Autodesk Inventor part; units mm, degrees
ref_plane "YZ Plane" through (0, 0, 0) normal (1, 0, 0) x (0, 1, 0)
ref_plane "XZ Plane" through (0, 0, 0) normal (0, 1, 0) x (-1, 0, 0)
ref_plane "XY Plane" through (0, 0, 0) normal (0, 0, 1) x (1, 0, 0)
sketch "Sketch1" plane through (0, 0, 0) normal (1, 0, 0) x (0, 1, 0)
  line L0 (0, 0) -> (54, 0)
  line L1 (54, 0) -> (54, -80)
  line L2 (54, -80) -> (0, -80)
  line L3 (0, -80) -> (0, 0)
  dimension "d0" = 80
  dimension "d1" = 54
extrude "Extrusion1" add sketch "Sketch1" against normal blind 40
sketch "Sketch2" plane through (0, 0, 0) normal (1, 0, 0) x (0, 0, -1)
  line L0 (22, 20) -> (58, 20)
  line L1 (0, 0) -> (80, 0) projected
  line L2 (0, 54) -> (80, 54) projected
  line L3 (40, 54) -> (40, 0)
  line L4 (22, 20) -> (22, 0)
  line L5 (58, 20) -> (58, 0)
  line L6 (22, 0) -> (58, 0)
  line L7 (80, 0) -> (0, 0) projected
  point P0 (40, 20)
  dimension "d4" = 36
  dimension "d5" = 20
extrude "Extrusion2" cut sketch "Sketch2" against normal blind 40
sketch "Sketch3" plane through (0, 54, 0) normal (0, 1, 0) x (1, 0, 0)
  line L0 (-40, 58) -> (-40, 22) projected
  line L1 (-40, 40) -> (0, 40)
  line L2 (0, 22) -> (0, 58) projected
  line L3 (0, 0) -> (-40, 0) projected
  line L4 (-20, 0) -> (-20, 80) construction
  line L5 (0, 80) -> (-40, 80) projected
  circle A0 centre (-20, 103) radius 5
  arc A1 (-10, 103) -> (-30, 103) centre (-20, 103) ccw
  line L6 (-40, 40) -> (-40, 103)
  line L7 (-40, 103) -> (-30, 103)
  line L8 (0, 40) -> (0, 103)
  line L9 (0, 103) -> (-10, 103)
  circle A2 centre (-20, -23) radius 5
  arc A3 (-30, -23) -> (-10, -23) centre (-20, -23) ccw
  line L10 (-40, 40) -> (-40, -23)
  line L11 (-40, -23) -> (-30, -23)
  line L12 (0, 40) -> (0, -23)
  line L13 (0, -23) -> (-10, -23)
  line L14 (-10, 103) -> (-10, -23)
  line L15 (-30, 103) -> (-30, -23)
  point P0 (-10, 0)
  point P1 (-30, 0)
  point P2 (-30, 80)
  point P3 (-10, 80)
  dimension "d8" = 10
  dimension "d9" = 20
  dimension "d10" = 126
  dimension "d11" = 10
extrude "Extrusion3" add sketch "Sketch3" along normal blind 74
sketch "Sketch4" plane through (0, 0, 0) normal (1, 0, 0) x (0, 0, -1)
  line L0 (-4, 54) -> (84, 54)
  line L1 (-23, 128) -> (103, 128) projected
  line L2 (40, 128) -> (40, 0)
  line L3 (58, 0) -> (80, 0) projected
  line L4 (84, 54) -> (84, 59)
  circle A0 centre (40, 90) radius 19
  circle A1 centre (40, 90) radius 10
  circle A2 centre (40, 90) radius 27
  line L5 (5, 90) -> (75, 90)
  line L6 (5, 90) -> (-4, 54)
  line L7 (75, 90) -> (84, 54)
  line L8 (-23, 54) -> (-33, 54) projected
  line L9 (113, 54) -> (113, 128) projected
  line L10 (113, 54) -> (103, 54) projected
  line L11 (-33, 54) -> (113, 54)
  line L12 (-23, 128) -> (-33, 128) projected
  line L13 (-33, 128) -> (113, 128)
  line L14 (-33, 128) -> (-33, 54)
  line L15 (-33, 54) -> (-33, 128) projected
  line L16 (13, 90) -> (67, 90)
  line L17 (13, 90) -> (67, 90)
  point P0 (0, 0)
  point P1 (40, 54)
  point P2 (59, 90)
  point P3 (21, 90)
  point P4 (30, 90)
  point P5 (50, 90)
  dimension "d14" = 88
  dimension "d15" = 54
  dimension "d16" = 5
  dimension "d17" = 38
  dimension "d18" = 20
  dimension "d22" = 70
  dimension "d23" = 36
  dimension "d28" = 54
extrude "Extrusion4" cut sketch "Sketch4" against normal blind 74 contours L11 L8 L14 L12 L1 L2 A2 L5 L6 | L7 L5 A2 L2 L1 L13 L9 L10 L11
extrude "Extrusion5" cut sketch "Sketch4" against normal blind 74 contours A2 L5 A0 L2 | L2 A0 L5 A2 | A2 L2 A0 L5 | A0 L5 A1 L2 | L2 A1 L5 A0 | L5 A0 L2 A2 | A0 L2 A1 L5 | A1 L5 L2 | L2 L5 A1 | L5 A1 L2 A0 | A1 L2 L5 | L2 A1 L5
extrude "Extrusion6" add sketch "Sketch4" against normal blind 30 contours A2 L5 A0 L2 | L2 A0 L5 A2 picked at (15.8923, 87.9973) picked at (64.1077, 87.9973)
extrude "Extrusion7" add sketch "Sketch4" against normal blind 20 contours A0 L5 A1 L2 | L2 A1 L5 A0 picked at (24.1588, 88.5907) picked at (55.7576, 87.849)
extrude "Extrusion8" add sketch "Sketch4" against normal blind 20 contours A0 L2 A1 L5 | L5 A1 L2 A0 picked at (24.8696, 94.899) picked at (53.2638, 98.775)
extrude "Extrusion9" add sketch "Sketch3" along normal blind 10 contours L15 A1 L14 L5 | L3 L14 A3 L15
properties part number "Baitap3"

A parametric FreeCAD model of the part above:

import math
import FreeCAD as App
import Part
import Sketcher

V = App.Vector
Q = App.Units.Quantity


def add_polygon(sketch, points):
    """Adds a closed chain of lines whose ends are joined by coincident constraints."""
    first, n = sketch.GeometryCount, len(points)
    for a, b in zip(points, points[1:] + points[:1]):
        sketch.addGeometry(Part.LineSegment(App.Vector(*a, 0), App.Vector(*b, 0)), False)
    for i in range(n):
        sketch.addConstraint(Sketcher.Constraint("Coincident", first + i, 2, first + (i + 1) % n, 1))

doc = App.newDocument("Part")
params = doc.addObject("Spreadsheet::Sheet", "Params")
for row, (alias, value) in enumerate([
    ("sketch1_width", "54 mm"),
    ("sketch1_height", "80 mm"),
    ("pad1_length", "40 mm"),
    ("sketch2_width", "20 mm"),
    ("sketch2_height", "36 mm"),
    ("pocket1_length", "40 mm"),
    ("sketch3_diameter", "10 mm"),
    ("sketch3_radius", "10 mm"),
    ("sketch3_width", "10 mm"),
    ("sketch3_height", "126 mm"),
    ("pad2_length", "74 mm"),
    ("sketch4_radius", "27 mm"),
    ("sketch4_height", "29 mm"),
    ("pocket2_length", "74 mm"),
    ("sketch5_diameter", "54 mm"),
    ("pocket3_length", "74 mm"),
    ("sketch6_radius", "27 mm"),
    ("sketch6_radius2", "19 mm"),
    ("pad3_length", "30 mm"),
    ("sketch7_radius", "19 mm"),
    ("sketch7_radius2", "10 mm"),
    ("pad4_length", "20 mm"),
    ("sketch8_radius", "10 mm"),
    ("sketch8_radius2", "19 mm"),
    ("pad5_length", "20 mm"),
    ("sketch9_diameter", "10 mm"),
    ("sketch9_radius", "10 mm"),
    ("sketch9_height", "23 mm"),
    ("pad6_length", "10 mm"),
], start=1):
    params.set(f"A{row}", alias)
    params.set(f"B{row}", "=" + value)
    params.setAlias(f"B{row}", alias)

body = doc.addObject("PartDesign::Body", "Body")

# Sketch on YZ plane
sketch1 = body.newObject("Sketcher::SketchObject", "Sketch")
sketch1.AttachmentSupport = (doc.getObject("YZ_Plane"), [""])
sketch1.MapMode = "FlatFace"
add_polygon(sketch1, [(54, 0), (0, 0), (0, -80), (54, -80)])  # lines 0-3
sketch1.addConstraint(Sketcher.Constraint("Horizontal", 0))
sketch1.addConstraint(Sketcher.Constraint("Vertical", 1))
sketch1.addConstraint(Sketcher.Constraint("Horizontal", 2))
sketch1.addConstraint(Sketcher.Constraint("Vertical", 3))
sketch1.addConstraint(Sketcher.Constraint("Coincident", 0, 2, -1, 1))
sketch1.addConstraint(Sketcher.Constraint("DistanceX", 0, 2, 0, 1, Q("54 mm")))
sketch1.addConstraint(Sketcher.Constraint("DistanceY", 1, 2, 1, 1, Q("80 mm")))
sketch1.setExpression("Constraints[9]", "Params.sketch1_width")
sketch1.setExpression("Constraints[10]", "Params.sketch1_height")
pad1 = body.newObject("PartDesign::Pad", "Pad")
pad1.Profile = sketch1
pad1.setExpression("Length", "Params.pad1_length")
pad1.Reversed = True

# Sketch on YZ plane
sketch2 = body.newObject("Sketcher::SketchObject", "Sketch001")
sketch2.AttachmentSupport = (doc.getObject("YZ_Plane"), [""])
sketch2.MapMode = "FlatFace"
add_polygon(sketch2, [(20, -22), (0, -22), (0, -58), (20, -58)])  # lines 0-3
sketch2.addConstraint(Sketcher.Constraint("Horizontal", 0))
sketch2.addConstraint(Sketcher.Constraint("Vertical", 1))
sketch2.addConstraint(Sketcher.Constraint("Horizontal", 2))
sketch2.addConstraint(Sketcher.Constraint("Vertical", 3))
sketch2.addConstraint(Sketcher.Constraint("PointOnObject", 0, 2, -2))
sketch2.addConstraint(Sketcher.Constraint("DistanceX", 0, 2, 0, 1, Q("20 mm")))
sketch2.addConstraint(Sketcher.Constraint("DistanceY", 1, 2, 1, 1, Q("36 mm")))
sketch2.addConstraint(Sketcher.Constraint("DistanceY", 0, 2, -1, 1, Q("22 mm")))
sketch2.setExpression("Constraints[9]", "Params.sketch2_width")
sketch2.setExpression("Constraints[10]", "Params.sketch2_height")
pocket1 = body.newObject("PartDesign::Pocket", "Pocket")
pocket1.Profile = sketch2
pocket1.setExpression("Length", "Params.pocket1_length")

# Sketch on XZ plane
sketch3 = body.newObject("Sketcher::SketchObject", "Sketch002")
sketch3.AttachmentSupport = (doc.getObject("XZ_Plane"), [""])
sketch3.MapMode = "FlatFace"
sketch3.AttachmentOffset = App.Placement(V(0, 0, -54), App.Rotation())
sketch3.addGeometry(Part.LineSegment(V(-40, 23, 0), V(-30, 23, 0)), False)
sketch3.addGeometry(Part.ArcOfCircle(Part.Circle(V(-20, 23, 0), V(0, 0, 1), 10), math.radians(0), math.radians(180)), False)
sketch3.addGeometry(Part.LineSegment(V(-10, 23, 0), V(0, 23, 0)), False)
sketch3.addGeometry(Part.LineSegment(V(0, 23, 0), V(0, -103, 0)), False)
sketch3.addGeometry(Part.LineSegment(V(0, -103, 0), V(-10, -103, 0)), False)
sketch3.addGeometry(Part.ArcOfCircle(Part.Circle(V(-20, -103, 0), V(0, 0, 1), 10), math.radians(180), math.radians(360)), False)
sketch3.addGeometry(Part.LineSegment(V(-30, -103, 0), V(-40, -103, 0)), False)
sketch3.addGeometry(Part.LineSegment(V(-40, -103, 0), V(-40, 23, 0)), False)
sketch3.addGeometry(Part.Circle(V(-20, -103, 0), V(0, 0, 1), 5), False)
sketch3.addGeometry(Part.Circle(V(-20, 23, 0), V(0, 0, 1), 5), False)
sketch3.addConstraint(Sketcher.Constraint("Coincident", 0, 2, 1, 2))
sketch3.addConstraint(Sketcher.Constraint("Coincident", 1, 1, 2, 1))
sketch3.addConstraint(Sketcher.Constraint("Coincident", 2, 2, 3, 1))
sketch3.addConstraint(Sketcher.Constraint("Coincident", 3, 2, 4, 1))
sketch3.addConstraint(Sketcher.Constraint("Coincident", 4, 2, 5, 2))
sketch3.addConstraint(Sketcher.Constraint("Coincident", 5, 1, 6, 1))
sketch3.addConstraint(Sketcher.Constraint("Coincident", 6, 2, 7, 1))
sketch3.addConstraint(Sketcher.Constraint("Coincident", 7, 2, 0, 1))
sketch3.addConstraint(Sketcher.Constraint("Horizontal", 0))
sketch3.addConstraint(Sketcher.Constraint("Horizontal", 2))
sketch3.addConstraint(Sketcher.Constraint("Vertical", 3))
sketch3.addConstraint(Sketcher.Constraint("Horizontal", 4))
sketch3.addConstraint(Sketcher.Constraint("Horizontal", 6))
sketch3.addConstraint(Sketcher.Constraint("Vertical", 7))
sketch3.addConstraint(Sketcher.Constraint("Coincident", 8, 3, 5, 3))
sketch3.addConstraint(Sketcher.Constraint("Coincident", 9, 3, 1, 3))
sketch3.addConstraint(Sketcher.Constraint("Equal", 1, 5))
sketch3.addConstraint(Sketcher.Constraint("Equal", 8, 9))
sketch3.addConstraint(Sketcher.Constraint("PointOnObject", 2, 2, -2))
sketch3.addConstraint(Sketcher.Constraint("Horizontal", 9, 3, 0, 2))
sketch3.addConstraint(Sketcher.Constraint("Horizontal", 0, 2, 1, 1))
sketch3.addConstraint(Sketcher.Constraint("Horizontal", 8, 3, 3, 2))
sketch3.addConstraint(Sketcher.Constraint("Horizontal", 4, 2, 5, 1))
sketch3.addConstraint(Sketcher.Constraint("Vertical", 1, 3, 5, 3))
sketch3.addConstraint(Sketcher.Constraint("Equal", 0, 2))
sketch3.addConstraint(Sketcher.Constraint("Diameter", 8, Q("10 mm")))
sketch3.addConstraint(Sketcher.Constraint("Radius", 1, Q("10 mm")))
sketch3.addConstraint(Sketcher.Constraint("DistanceX", 0, 1, 0, 2, Q("10 mm")))
sketch3.addConstraint(Sketcher.Constraint("DistanceY", 3, 2, 3, 1, Q("126 mm")))
sketch3.addConstraint(Sketcher.Constraint("DistanceY", -1, 1, 1, 3, Q("23 mm")))
sketch3.setExpression("Constraints[25]", "Params.sketch3_diameter")
sketch3.setExpression("Constraints[26]", "Params.sketch3_radius")
sketch3.setExpression("Constraints[27]", "Params.sketch3_width")
sketch3.setExpression("Constraints[28]", "Params.sketch3_height")
pad2 = body.newObject("PartDesign::Pad", "Pad001")
pad2.Profile = sketch3
pad2.setExpression("Length", "Params.pad2_length")
pad2.Reversed = True

# Sketch on YZ plane
sketch4 = body.newObject("Sketcher::SketchObject", "Sketch003")
sketch4.AttachmentSupport = (doc.getObject("YZ_Plane"), [""])
sketch4.MapMode = "FlatFace"
sketch4.addGeometry(Part.LineSegment(V(54, 4, 0), V(90, -5, 0)), False)
sketch4.addGeometry(Part.LineSegment(V(90, -5, 0), V(90, -13, 0)), False)
sketch4.addGeometry(Part.ArcOfCircle(Part.Circle(V(90, -40, 0), V(0, 0, 1), 27), math.radians(-90), math.radians(90)), False)
sketch4.addGeometry(Part.LineSegment(V(90, -67, 0), V(90, -75, 0)), False)
sketch4.addGeometry(Part.LineSegment(V(90, -75, 0), V(54, -84, 0)), False)
sketch4.addGeometry(Part.LineSegment(V(54, -84, 0), V(54, -113, 0)), False)
sketch4.addGeometry(Part.LineSegment(V(54, -113, 0), V(128, -113, 0)), False)
sketch4.addGeometry(Part.LineSegment(V(128, -113, 0), V(128, 33, 0)), False)
sketch4.addGeometry(Part.LineSegment(V(128, 33, 0), V(54, 33, 0)), False)
sketch4.addGeometry(Part.LineSegment(V(54, 33, 0), V(54, 4, 0)), False)
sketch4.addConstraint(Sketcher.Constraint("Coincident", 0, 2, 1, 1))
sketch4.addConstraint(Sketcher.Constraint("Coincident", 1, 2, 2, 2))
sketch4.addConstraint(Sketcher.Constraint("Coincident", 2, 1, 3, 1))
sketch4.addConstraint(Sketcher.Constraint("Coincident", 3, 2, 4, 1))
sketch4.addConstraint(Sketcher.Constraint("Coincident", 4, 2, 5, 1))
sketch4.addConstraint(Sketcher.Constraint("Coincident", 5, 2, 6, 1))
sketch4.addConstraint(Sketcher.Constraint("Coincident", 6, 2, 7, 1))
sketch4.addConstraint(Sketcher.Constraint("Coincident", 7, 2, 8, 1))
sketch4.addConstraint(Sketcher.Constraint("Coincident", 8, 2, 9, 1))
sketch4.addConstraint(Sketcher.Constraint("Coincident", 9, 2, 0, 1))
sketch4.addConstraint(Sketcher.Constraint("Vertical", 1))
sketch4.addConstraint(Sketcher.Constraint("Vertical", 3))
sketch4.addConstraint(Sketcher.Constraint("Vertical", 5))
sketch4.addConstraint(Sketcher.Constraint("Horizontal", 6))
sketch4.addConstraint(Sketcher.Constraint("Vertical", 7))
sketch4.addConstraint(Sketcher.Constraint("Horizontal", 8))
sketch4.addConstraint(Sketcher.Constraint("Vertical", 9))
sketch4.addConstraint(Sketcher.Constraint("Vertical", 2, 3, 0, 2))
sketch4.addConstraint(Sketcher.Constraint("Vertical", 1, 2, 2, 1))
sketch4.addConstraint(Sketcher.Constraint("Vertical", 5, 2, 8, 2))
sketch4.addConstraint(Sketcher.Constraint("Equal", 1, 3))
sketch4.addConstraint(Sketcher.Constraint("Equal", 5, 9))
sketch4.addConstraint(Sketcher.Constraint("Equal", 0, 4))
sketch4.addConstraint(Sketcher.Constraint("Radius", 2, Q("27 mm")))
sketch4.addConstraint(Sketcher.Constraint("DistanceY", 0, 2, -1, 1, Q("5 mm")))
sketch4.addConstraint(Sketcher.Constraint("DistanceX", -1, 1, 4, 2, Q("54 mm")))
sketch4.addConstraint(Sketcher.Constraint("DistanceY", 3, 2, 0, 2, Q("70 mm")))
sketch4.addConstraint(Sketcher.Constraint("DistanceX", 4, 2, 3, 2, Q("36 mm")))
sketch4.addConstraint(Sketcher.Constraint("DistanceY", 5, 2, 3, 2, Q("38 mm")))
sketch4.addConstraint(Sketcher.Constraint("DistanceX", 3, 2, 6, 2, Q("38 mm")))
sketch4.addConstraint(Sketcher.Constraint("DistanceY", 5, 2, 5, 1, Q("29 mm")))
sketch4.setExpression("Constraints[23]", "Params.sketch4_radius")
sketch4.setExpression("Constraints[30]", "Params.sketch4_height")
pocket2 = body.newObject("PartDesign::Pocket", "Pocket001")
pocket2.Profile = sketch4
pocket2.setExpression("Length", "Params.pocket2_length")

# Sketch on YZ plane
sketch5 = body.newObject("Sketcher::SketchObject", "Sketch004")
sketch5.AttachmentSupport = (doc.getObject("YZ_Plane"), [""])
sketch5.MapMode = "FlatFace"
sketch5.addGeometry(Part.Circle(V(90, -40, 0), V(0, 0, 1), 27), False)
sketch5.addConstraint(Sketcher.Constraint("Diameter", 0, Q("54 mm")))
sketch5.addConstraint(Sketcher.Constraint("DistanceX", -1, 1, 0, 3, Q("90 mm")))
sketch5.addConstraint(Sketcher.Constraint("DistanceY", 0, 3, -1, 1, Q("40 mm")))
sketch5.setExpression("Constraints[0]", "Params.sketch5_diameter")
pocket3 = body.newObject("PartDesign::Pocket", "Pocket002")
pocket3.Profile = sketch5
pocket3.setExpression("Length", "Params.pocket3_length")

# Sketch on YZ plane
sketch6 = body.newObject("Sketcher::SketchObject", "Sketch005")
sketch6.AttachmentSupport = (doc.getObject("YZ_Plane"), [""])
sketch6.MapMode = "FlatFace"
sketch6.addGeometry(Part.ArcOfCircle(Part.Circle(V(90, -40, 0), V(0, 0, 1), 27), math.radians(90), math.radians(270)), False)
sketch6.addGeometry(Part.LineSegment(V(90, -67, 0), V(90, -59, 0)), False)
sketch6.addGeometry(Part.ArcOfCircle(Part.Circle(V(90, -40, 0), V(0, 0, 1), 19), math.radians(90), math.radians(270)), False)
sketch6.addGeometry(Part.LineSegment(V(90, -21, 0), V(90, -13, 0)), False)
sketch6.addConstraint(Sketcher.Constraint("Coincident", 0, 2, 1, 1))
sketch6.addConstraint(Sketcher.Constraint("Coincident", 1, 2, 2, 2))
sketch6.addConstraint(Sketcher.Constraint("Coincident", 2, 1, 3, 1))
sketch6.addConstraint(Sketcher.Constraint("Coincident", 3, 2, 0, 1))
sketch6.addConstraint(Sketcher.Constraint("Vertical", 1))
sketch6.addConstraint(Sketcher.Constraint("Vertical", 3))
sketch6.addConstraint(Sketcher.Constraint("Coincident", 2, 3, 0, 3))
sketch6.addConstraint(Sketcher.Constraint("Vertical", 2, 3, 0, 2))
sketch6.addConstraint(Sketcher.Constraint("Vertical", 1, 2, 2, 1))
sketch6.addConstraint(Sketcher.Constraint("Radius", 0, Q("27 mm")))
sketch6.addConstraint(Sketcher.Constraint("Radius", 2, Q("19 mm")))
sketch6.addConstraint(Sketcher.Constraint("DistanceX", -1, 1, 0, 3, Q("90 mm")))
sketch6.addConstraint(Sketcher.Constraint("DistanceY", 0, 3, -1, 1, Q("40 mm")))
sketch6.setExpression("Constraints[9]", "Params.sketch6_radius")
sketch6.setExpression("Constraints[10]", "Params.sketch6_radius2")
pad3 = body.newObject("PartDesign::Pad", "Pad002")
pad3.Profile = sketch6
pad3.setExpression("Length", "Params.pad3_length")
pad3.Reversed = True

# Sketch on YZ plane
sketch7 = body.newObject("Sketcher::SketchObject", "Sketch006")
sketch7.AttachmentSupport = (doc.getObject("YZ_Plane"), [""])
sketch7.MapMode = "FlatFace"
sketch7.addGeometry(Part.ArcOfCircle(Part.Circle(V(90, -40, 0), V(0, 0, 1), 19), math.radians(90), math.radians(270)), False)
sketch7.addGeometry(Part.LineSegment(V(90, -59, 0), V(90, -50, 0)), False)
sketch7.addGeometry(Part.ArcOfCircle(Part.Circle(V(90, -40, 0), V(0, 0, 1), 10), math.radians(90), math.radians(270)), False)
sketch7.addGeometry(Part.LineSegment(V(90, -30, 0), V(90, -21, 0)), False)
sketch7.addConstraint(Sketcher.Constraint("Coincident", 0, 2, 1, 1))
sketch7.addConstraint(Sketcher.Constraint("Coincident", 1, 2, 2, 2))
sketch7.addConstraint(Sketcher.Constraint("Coincident", 2, 1, 3, 1))
sketch7.addConstraint(Sketcher.Constraint("Coincident", 3, 2, 0, 1))
sketch7.addConstraint(Sketcher.Constraint("Vertical", 1))
sketch7.addConstraint(Sketcher.Constraint("Vertical", 3))
sketch7.addConstraint(Sketcher.Constraint("Coincident", 2, 3, 0, 3))
sketch7.addConstraint(Sketcher.Constraint("Vertical", 2, 3, 0, 2))
sketch7.addConstraint(Sketcher.Constraint("Vertical", 1, 2, 2, 1))
sketch7.addConstraint(Sketcher.Constraint("Radius", 0, Q("19 mm")))
sketch7.addConstraint(Sketcher.Constraint("Radius", 2, Q("10 mm")))
sketch7.addConstraint(Sketcher.Constraint("DistanceX", -1, 1, 0, 3, Q("90 mm")))
sketch7.addConstraint(Sketcher.Constraint("DistanceY", 0, 3, -1, 1, Q("40 mm")))
sketch7.setExpression("Constraints[9]", "Params.sketch7_radius")
sketch7.setExpression("Constraints[10]", "Params.sketch7_radius2")
pad4 = body.newObject("PartDesign::Pad", "Pad003")
pad4.Profile = sketch7
pad4.setExpression("Length", "Params.pad4_length")
pad4.Reversed = True

# Sketch on YZ plane
sketch8 = body.newObject("Sketcher::SketchObject", "Sketch007")
sketch8.AttachmentSupport = (doc.getObject("YZ_Plane"), [""])
sketch8.MapMode = "FlatFace"
sketch8.addGeometry(Part.LineSegment(V(90, -21, 0), V(90, -30, 0)), False)
sketch8.addGeometry(Part.ArcOfCircle(Part.Circle(V(90, -40, 0), V(0, 0, 1), 10), math.radians(-90), math.radians(90)), False)
sketch8.addGeometry(Part.LineSegment(V(90, -50, 0), V(90, -59, 0)), False)
sketch8.addGeometry(Part.ArcOfCircle(Part.Circle(V(90, -40, 0), V(0, 0, 1), 19), math.radians(-90), math.radians(90)), False)
sketch8.addConstraint(Sketcher.Constraint("Coincident", 0, 2, 1, 2))
sketch8.addConstraint(Sketcher.Constraint("Coincident", 1, 1, 2, 1))
sketch8.addConstraint(Sketcher.Constraint("Coincident", 2, 2, 3, 1))
sketch8.addConstraint(Sketcher.Constraint("Coincident", 3, 2, 0, 1))
sketch8.addConstraint(Sketcher.Constraint("Vertical", 0))
sketch8.addConstraint(Sketcher.Constraint("Vertical", 2))
sketch8.addConstraint(Sketcher.Constraint("Coincident", 3, 3, 1, 3))
sketch8.addConstraint(Sketcher.Constraint("Vertical", 3, 3, 0, 2))
sketch8.addConstraint(Sketcher.Constraint("Vertical", 0, 2, 1, 1))
sketch8.addConstraint(Sketcher.Constraint("Radius", 1, Q("10 mm")))
sketch8.addConstraint(Sketcher.Constraint("Radius", 3, Q("19 mm")))
sketch8.addConstraint(Sketcher.Constraint("DistanceX", -1, 1, 1, 3, Q("90 mm")))
sketch8.addConstraint(Sketcher.Constraint("DistanceY", 1, 3, -1, 1, Q("40 mm")))
sketch8.setExpression("Constraints[9]", "Params.sketch8_radius")
sketch8.setExpression("Constraints[10]", "Params.sketch8_radius2")
pad5 = body.newObject("PartDesign::Pad", "Pad004")
pad5.Profile = sketch8
pad5.setExpression("Length", "Params.pad5_length")
pad5.Reversed = True

# Sketch on XZ plane
sketch9 = body.newObject("Sketcher::SketchObject", "Sketch008")
sketch9.AttachmentSupport = (doc.getObject("XZ_Plane"), [""])
sketch9.MapMode = "FlatFace"
sketch9.AttachmentOffset = App.Placement(V(0, 0, -54), App.Rotation())
sketch9.addGeometry(Part.LineSegment(V(-30, -103, 0), V(-30, -80, 0)), False)
sketch9.addGeometry(Part.LineSegment(V(-30, -80, 0), V(-10, -80, 0)), False)
sketch9.addGeometry(Part.LineSegment(V(-10, -80, 0), V(-10, -103, 0)), False)
sketch9.addGeometry(Part.ArcOfCircle(Part.Circle(V(-20, -103, 0), V(0, 0, 1), 10), math.radians(180), math.radians(360)), False)
sketch9.addGeometry(Part.Circle(V(-20, -103, 0), V(0, 0, 1), 5), False)
sketch9.addGeometry(Part.LineSegment(V(-10, 0, 0), V(-30, 0, 0)), False)
sketch9.addGeometry(Part.LineSegment(V(-30, 0, 0), V(-30, 23, 0)), False)
sketch9.addGeometry(Part.ArcOfCircle(Part.Circle(V(-20, 23, 0), V(0, 0, 1), 10), math.radians(0), math.radians(180)), False)
sketch9.addGeometry(Part.LineSegment(V(-10, 23, 0), V(-10, 0, 0)), False)
sketch9.addGeometry(Part.Circle(V(-20, 23, 0), V(0, 0, 1), 5), False)
sketch9.addConstraint(Sketcher.Constraint("Coincident", 0, 2, 1, 1))
sketch9.addConstraint(Sketcher.Constraint("Coincident", 1, 2, 2, 1))
sketch9.addConstraint(Sketcher.Constraint("Tangent", 2, 2, 3, 2))
sketch9.addConstraint(Sketcher.Constraint("Tangent", 3, 1, 0, 1))
sketch9.addConstraint(Sketcher.Constraint("Coincident", 5, 2, 6, 1))
sketch9.addConstraint(Sketcher.Constraint("Tangent", 6, 2, 7, 2))
sketch9.addConstraint(Sketcher.Constraint("Tangent", 7, 1, 8, 1))
sketch9.addConstraint(Sketcher.Constraint("Coincident", 8, 2, 5, 1))
sketch9.addConstraint(Sketcher.Constraint("Vertical", 0))
sketch9.addConstraint(Sketcher.Constraint("Horizontal", 1))
sketch9.addConstraint(Sketcher.Constraint("Vertical", 2))
sketch9.addConstraint(Sketcher.Constraint("Horizontal", 5))
sketch9.addConstraint(Sketcher.Constraint("Vertical", 6))
sketch9.addConstraint(Sketcher.Constraint("Vertical", 8))
sketch9.addConstraint(Sketcher.Constraint("Coincident", 4, 3, 3, 3))
sketch9.addConstraint(Sketcher.Constraint("Coincident", 9, 3, 7, 3))
sketch9.addConstraint(Sketcher.Constraint("Equal", 3, 7))
sketch9.addConstraint(Sketcher.Constraint("Equal", 4, 9))
sketch9.addConstraint(Sketcher.Constraint("PointOnObject", 5, 2, -1))
sketch9.addConstraint(Sketcher.Constraint("Vertical", 4, 3, 7, 3))
sketch9.addConstraint(Sketcher.Constraint("Equal", 2, 6))
sketch9.addConstraint(Sketcher.Constraint("Diameter", 4, Q("10 mm")))
sketch9.addConstraint(Sketcher.Constraint("Radius", 3, Q("10 mm")))
sketch9.addConstraint(Sketcher.Constraint("DistanceX", 3, 3, -1, 1, Q("20 mm")))
sketch9.addConstraint(Sketcher.Constraint("DistanceY", 3, 3, 7, 3, Q("126 mm")))
sketch9.addConstraint(Sketcher.Constraint("DistanceY", 0, 1, 0, 2, Q("23 mm")))
sketch9.setExpression("Constraints[21]", "Params.sketch9_diameter")
sketch9.setExpression("Constraints[22]", "Params.sketch9_radius")
sketch9.setExpression("Constraints[25]", "Params.sketch9_height")
pad6 = body.newObject("PartDesign::Pad", "Pad005")
pad6.Profile = sketch9
pad6.setExpression("Length", "Params.pad6_length")
pad6.Reversed = True

doc.recompute()
